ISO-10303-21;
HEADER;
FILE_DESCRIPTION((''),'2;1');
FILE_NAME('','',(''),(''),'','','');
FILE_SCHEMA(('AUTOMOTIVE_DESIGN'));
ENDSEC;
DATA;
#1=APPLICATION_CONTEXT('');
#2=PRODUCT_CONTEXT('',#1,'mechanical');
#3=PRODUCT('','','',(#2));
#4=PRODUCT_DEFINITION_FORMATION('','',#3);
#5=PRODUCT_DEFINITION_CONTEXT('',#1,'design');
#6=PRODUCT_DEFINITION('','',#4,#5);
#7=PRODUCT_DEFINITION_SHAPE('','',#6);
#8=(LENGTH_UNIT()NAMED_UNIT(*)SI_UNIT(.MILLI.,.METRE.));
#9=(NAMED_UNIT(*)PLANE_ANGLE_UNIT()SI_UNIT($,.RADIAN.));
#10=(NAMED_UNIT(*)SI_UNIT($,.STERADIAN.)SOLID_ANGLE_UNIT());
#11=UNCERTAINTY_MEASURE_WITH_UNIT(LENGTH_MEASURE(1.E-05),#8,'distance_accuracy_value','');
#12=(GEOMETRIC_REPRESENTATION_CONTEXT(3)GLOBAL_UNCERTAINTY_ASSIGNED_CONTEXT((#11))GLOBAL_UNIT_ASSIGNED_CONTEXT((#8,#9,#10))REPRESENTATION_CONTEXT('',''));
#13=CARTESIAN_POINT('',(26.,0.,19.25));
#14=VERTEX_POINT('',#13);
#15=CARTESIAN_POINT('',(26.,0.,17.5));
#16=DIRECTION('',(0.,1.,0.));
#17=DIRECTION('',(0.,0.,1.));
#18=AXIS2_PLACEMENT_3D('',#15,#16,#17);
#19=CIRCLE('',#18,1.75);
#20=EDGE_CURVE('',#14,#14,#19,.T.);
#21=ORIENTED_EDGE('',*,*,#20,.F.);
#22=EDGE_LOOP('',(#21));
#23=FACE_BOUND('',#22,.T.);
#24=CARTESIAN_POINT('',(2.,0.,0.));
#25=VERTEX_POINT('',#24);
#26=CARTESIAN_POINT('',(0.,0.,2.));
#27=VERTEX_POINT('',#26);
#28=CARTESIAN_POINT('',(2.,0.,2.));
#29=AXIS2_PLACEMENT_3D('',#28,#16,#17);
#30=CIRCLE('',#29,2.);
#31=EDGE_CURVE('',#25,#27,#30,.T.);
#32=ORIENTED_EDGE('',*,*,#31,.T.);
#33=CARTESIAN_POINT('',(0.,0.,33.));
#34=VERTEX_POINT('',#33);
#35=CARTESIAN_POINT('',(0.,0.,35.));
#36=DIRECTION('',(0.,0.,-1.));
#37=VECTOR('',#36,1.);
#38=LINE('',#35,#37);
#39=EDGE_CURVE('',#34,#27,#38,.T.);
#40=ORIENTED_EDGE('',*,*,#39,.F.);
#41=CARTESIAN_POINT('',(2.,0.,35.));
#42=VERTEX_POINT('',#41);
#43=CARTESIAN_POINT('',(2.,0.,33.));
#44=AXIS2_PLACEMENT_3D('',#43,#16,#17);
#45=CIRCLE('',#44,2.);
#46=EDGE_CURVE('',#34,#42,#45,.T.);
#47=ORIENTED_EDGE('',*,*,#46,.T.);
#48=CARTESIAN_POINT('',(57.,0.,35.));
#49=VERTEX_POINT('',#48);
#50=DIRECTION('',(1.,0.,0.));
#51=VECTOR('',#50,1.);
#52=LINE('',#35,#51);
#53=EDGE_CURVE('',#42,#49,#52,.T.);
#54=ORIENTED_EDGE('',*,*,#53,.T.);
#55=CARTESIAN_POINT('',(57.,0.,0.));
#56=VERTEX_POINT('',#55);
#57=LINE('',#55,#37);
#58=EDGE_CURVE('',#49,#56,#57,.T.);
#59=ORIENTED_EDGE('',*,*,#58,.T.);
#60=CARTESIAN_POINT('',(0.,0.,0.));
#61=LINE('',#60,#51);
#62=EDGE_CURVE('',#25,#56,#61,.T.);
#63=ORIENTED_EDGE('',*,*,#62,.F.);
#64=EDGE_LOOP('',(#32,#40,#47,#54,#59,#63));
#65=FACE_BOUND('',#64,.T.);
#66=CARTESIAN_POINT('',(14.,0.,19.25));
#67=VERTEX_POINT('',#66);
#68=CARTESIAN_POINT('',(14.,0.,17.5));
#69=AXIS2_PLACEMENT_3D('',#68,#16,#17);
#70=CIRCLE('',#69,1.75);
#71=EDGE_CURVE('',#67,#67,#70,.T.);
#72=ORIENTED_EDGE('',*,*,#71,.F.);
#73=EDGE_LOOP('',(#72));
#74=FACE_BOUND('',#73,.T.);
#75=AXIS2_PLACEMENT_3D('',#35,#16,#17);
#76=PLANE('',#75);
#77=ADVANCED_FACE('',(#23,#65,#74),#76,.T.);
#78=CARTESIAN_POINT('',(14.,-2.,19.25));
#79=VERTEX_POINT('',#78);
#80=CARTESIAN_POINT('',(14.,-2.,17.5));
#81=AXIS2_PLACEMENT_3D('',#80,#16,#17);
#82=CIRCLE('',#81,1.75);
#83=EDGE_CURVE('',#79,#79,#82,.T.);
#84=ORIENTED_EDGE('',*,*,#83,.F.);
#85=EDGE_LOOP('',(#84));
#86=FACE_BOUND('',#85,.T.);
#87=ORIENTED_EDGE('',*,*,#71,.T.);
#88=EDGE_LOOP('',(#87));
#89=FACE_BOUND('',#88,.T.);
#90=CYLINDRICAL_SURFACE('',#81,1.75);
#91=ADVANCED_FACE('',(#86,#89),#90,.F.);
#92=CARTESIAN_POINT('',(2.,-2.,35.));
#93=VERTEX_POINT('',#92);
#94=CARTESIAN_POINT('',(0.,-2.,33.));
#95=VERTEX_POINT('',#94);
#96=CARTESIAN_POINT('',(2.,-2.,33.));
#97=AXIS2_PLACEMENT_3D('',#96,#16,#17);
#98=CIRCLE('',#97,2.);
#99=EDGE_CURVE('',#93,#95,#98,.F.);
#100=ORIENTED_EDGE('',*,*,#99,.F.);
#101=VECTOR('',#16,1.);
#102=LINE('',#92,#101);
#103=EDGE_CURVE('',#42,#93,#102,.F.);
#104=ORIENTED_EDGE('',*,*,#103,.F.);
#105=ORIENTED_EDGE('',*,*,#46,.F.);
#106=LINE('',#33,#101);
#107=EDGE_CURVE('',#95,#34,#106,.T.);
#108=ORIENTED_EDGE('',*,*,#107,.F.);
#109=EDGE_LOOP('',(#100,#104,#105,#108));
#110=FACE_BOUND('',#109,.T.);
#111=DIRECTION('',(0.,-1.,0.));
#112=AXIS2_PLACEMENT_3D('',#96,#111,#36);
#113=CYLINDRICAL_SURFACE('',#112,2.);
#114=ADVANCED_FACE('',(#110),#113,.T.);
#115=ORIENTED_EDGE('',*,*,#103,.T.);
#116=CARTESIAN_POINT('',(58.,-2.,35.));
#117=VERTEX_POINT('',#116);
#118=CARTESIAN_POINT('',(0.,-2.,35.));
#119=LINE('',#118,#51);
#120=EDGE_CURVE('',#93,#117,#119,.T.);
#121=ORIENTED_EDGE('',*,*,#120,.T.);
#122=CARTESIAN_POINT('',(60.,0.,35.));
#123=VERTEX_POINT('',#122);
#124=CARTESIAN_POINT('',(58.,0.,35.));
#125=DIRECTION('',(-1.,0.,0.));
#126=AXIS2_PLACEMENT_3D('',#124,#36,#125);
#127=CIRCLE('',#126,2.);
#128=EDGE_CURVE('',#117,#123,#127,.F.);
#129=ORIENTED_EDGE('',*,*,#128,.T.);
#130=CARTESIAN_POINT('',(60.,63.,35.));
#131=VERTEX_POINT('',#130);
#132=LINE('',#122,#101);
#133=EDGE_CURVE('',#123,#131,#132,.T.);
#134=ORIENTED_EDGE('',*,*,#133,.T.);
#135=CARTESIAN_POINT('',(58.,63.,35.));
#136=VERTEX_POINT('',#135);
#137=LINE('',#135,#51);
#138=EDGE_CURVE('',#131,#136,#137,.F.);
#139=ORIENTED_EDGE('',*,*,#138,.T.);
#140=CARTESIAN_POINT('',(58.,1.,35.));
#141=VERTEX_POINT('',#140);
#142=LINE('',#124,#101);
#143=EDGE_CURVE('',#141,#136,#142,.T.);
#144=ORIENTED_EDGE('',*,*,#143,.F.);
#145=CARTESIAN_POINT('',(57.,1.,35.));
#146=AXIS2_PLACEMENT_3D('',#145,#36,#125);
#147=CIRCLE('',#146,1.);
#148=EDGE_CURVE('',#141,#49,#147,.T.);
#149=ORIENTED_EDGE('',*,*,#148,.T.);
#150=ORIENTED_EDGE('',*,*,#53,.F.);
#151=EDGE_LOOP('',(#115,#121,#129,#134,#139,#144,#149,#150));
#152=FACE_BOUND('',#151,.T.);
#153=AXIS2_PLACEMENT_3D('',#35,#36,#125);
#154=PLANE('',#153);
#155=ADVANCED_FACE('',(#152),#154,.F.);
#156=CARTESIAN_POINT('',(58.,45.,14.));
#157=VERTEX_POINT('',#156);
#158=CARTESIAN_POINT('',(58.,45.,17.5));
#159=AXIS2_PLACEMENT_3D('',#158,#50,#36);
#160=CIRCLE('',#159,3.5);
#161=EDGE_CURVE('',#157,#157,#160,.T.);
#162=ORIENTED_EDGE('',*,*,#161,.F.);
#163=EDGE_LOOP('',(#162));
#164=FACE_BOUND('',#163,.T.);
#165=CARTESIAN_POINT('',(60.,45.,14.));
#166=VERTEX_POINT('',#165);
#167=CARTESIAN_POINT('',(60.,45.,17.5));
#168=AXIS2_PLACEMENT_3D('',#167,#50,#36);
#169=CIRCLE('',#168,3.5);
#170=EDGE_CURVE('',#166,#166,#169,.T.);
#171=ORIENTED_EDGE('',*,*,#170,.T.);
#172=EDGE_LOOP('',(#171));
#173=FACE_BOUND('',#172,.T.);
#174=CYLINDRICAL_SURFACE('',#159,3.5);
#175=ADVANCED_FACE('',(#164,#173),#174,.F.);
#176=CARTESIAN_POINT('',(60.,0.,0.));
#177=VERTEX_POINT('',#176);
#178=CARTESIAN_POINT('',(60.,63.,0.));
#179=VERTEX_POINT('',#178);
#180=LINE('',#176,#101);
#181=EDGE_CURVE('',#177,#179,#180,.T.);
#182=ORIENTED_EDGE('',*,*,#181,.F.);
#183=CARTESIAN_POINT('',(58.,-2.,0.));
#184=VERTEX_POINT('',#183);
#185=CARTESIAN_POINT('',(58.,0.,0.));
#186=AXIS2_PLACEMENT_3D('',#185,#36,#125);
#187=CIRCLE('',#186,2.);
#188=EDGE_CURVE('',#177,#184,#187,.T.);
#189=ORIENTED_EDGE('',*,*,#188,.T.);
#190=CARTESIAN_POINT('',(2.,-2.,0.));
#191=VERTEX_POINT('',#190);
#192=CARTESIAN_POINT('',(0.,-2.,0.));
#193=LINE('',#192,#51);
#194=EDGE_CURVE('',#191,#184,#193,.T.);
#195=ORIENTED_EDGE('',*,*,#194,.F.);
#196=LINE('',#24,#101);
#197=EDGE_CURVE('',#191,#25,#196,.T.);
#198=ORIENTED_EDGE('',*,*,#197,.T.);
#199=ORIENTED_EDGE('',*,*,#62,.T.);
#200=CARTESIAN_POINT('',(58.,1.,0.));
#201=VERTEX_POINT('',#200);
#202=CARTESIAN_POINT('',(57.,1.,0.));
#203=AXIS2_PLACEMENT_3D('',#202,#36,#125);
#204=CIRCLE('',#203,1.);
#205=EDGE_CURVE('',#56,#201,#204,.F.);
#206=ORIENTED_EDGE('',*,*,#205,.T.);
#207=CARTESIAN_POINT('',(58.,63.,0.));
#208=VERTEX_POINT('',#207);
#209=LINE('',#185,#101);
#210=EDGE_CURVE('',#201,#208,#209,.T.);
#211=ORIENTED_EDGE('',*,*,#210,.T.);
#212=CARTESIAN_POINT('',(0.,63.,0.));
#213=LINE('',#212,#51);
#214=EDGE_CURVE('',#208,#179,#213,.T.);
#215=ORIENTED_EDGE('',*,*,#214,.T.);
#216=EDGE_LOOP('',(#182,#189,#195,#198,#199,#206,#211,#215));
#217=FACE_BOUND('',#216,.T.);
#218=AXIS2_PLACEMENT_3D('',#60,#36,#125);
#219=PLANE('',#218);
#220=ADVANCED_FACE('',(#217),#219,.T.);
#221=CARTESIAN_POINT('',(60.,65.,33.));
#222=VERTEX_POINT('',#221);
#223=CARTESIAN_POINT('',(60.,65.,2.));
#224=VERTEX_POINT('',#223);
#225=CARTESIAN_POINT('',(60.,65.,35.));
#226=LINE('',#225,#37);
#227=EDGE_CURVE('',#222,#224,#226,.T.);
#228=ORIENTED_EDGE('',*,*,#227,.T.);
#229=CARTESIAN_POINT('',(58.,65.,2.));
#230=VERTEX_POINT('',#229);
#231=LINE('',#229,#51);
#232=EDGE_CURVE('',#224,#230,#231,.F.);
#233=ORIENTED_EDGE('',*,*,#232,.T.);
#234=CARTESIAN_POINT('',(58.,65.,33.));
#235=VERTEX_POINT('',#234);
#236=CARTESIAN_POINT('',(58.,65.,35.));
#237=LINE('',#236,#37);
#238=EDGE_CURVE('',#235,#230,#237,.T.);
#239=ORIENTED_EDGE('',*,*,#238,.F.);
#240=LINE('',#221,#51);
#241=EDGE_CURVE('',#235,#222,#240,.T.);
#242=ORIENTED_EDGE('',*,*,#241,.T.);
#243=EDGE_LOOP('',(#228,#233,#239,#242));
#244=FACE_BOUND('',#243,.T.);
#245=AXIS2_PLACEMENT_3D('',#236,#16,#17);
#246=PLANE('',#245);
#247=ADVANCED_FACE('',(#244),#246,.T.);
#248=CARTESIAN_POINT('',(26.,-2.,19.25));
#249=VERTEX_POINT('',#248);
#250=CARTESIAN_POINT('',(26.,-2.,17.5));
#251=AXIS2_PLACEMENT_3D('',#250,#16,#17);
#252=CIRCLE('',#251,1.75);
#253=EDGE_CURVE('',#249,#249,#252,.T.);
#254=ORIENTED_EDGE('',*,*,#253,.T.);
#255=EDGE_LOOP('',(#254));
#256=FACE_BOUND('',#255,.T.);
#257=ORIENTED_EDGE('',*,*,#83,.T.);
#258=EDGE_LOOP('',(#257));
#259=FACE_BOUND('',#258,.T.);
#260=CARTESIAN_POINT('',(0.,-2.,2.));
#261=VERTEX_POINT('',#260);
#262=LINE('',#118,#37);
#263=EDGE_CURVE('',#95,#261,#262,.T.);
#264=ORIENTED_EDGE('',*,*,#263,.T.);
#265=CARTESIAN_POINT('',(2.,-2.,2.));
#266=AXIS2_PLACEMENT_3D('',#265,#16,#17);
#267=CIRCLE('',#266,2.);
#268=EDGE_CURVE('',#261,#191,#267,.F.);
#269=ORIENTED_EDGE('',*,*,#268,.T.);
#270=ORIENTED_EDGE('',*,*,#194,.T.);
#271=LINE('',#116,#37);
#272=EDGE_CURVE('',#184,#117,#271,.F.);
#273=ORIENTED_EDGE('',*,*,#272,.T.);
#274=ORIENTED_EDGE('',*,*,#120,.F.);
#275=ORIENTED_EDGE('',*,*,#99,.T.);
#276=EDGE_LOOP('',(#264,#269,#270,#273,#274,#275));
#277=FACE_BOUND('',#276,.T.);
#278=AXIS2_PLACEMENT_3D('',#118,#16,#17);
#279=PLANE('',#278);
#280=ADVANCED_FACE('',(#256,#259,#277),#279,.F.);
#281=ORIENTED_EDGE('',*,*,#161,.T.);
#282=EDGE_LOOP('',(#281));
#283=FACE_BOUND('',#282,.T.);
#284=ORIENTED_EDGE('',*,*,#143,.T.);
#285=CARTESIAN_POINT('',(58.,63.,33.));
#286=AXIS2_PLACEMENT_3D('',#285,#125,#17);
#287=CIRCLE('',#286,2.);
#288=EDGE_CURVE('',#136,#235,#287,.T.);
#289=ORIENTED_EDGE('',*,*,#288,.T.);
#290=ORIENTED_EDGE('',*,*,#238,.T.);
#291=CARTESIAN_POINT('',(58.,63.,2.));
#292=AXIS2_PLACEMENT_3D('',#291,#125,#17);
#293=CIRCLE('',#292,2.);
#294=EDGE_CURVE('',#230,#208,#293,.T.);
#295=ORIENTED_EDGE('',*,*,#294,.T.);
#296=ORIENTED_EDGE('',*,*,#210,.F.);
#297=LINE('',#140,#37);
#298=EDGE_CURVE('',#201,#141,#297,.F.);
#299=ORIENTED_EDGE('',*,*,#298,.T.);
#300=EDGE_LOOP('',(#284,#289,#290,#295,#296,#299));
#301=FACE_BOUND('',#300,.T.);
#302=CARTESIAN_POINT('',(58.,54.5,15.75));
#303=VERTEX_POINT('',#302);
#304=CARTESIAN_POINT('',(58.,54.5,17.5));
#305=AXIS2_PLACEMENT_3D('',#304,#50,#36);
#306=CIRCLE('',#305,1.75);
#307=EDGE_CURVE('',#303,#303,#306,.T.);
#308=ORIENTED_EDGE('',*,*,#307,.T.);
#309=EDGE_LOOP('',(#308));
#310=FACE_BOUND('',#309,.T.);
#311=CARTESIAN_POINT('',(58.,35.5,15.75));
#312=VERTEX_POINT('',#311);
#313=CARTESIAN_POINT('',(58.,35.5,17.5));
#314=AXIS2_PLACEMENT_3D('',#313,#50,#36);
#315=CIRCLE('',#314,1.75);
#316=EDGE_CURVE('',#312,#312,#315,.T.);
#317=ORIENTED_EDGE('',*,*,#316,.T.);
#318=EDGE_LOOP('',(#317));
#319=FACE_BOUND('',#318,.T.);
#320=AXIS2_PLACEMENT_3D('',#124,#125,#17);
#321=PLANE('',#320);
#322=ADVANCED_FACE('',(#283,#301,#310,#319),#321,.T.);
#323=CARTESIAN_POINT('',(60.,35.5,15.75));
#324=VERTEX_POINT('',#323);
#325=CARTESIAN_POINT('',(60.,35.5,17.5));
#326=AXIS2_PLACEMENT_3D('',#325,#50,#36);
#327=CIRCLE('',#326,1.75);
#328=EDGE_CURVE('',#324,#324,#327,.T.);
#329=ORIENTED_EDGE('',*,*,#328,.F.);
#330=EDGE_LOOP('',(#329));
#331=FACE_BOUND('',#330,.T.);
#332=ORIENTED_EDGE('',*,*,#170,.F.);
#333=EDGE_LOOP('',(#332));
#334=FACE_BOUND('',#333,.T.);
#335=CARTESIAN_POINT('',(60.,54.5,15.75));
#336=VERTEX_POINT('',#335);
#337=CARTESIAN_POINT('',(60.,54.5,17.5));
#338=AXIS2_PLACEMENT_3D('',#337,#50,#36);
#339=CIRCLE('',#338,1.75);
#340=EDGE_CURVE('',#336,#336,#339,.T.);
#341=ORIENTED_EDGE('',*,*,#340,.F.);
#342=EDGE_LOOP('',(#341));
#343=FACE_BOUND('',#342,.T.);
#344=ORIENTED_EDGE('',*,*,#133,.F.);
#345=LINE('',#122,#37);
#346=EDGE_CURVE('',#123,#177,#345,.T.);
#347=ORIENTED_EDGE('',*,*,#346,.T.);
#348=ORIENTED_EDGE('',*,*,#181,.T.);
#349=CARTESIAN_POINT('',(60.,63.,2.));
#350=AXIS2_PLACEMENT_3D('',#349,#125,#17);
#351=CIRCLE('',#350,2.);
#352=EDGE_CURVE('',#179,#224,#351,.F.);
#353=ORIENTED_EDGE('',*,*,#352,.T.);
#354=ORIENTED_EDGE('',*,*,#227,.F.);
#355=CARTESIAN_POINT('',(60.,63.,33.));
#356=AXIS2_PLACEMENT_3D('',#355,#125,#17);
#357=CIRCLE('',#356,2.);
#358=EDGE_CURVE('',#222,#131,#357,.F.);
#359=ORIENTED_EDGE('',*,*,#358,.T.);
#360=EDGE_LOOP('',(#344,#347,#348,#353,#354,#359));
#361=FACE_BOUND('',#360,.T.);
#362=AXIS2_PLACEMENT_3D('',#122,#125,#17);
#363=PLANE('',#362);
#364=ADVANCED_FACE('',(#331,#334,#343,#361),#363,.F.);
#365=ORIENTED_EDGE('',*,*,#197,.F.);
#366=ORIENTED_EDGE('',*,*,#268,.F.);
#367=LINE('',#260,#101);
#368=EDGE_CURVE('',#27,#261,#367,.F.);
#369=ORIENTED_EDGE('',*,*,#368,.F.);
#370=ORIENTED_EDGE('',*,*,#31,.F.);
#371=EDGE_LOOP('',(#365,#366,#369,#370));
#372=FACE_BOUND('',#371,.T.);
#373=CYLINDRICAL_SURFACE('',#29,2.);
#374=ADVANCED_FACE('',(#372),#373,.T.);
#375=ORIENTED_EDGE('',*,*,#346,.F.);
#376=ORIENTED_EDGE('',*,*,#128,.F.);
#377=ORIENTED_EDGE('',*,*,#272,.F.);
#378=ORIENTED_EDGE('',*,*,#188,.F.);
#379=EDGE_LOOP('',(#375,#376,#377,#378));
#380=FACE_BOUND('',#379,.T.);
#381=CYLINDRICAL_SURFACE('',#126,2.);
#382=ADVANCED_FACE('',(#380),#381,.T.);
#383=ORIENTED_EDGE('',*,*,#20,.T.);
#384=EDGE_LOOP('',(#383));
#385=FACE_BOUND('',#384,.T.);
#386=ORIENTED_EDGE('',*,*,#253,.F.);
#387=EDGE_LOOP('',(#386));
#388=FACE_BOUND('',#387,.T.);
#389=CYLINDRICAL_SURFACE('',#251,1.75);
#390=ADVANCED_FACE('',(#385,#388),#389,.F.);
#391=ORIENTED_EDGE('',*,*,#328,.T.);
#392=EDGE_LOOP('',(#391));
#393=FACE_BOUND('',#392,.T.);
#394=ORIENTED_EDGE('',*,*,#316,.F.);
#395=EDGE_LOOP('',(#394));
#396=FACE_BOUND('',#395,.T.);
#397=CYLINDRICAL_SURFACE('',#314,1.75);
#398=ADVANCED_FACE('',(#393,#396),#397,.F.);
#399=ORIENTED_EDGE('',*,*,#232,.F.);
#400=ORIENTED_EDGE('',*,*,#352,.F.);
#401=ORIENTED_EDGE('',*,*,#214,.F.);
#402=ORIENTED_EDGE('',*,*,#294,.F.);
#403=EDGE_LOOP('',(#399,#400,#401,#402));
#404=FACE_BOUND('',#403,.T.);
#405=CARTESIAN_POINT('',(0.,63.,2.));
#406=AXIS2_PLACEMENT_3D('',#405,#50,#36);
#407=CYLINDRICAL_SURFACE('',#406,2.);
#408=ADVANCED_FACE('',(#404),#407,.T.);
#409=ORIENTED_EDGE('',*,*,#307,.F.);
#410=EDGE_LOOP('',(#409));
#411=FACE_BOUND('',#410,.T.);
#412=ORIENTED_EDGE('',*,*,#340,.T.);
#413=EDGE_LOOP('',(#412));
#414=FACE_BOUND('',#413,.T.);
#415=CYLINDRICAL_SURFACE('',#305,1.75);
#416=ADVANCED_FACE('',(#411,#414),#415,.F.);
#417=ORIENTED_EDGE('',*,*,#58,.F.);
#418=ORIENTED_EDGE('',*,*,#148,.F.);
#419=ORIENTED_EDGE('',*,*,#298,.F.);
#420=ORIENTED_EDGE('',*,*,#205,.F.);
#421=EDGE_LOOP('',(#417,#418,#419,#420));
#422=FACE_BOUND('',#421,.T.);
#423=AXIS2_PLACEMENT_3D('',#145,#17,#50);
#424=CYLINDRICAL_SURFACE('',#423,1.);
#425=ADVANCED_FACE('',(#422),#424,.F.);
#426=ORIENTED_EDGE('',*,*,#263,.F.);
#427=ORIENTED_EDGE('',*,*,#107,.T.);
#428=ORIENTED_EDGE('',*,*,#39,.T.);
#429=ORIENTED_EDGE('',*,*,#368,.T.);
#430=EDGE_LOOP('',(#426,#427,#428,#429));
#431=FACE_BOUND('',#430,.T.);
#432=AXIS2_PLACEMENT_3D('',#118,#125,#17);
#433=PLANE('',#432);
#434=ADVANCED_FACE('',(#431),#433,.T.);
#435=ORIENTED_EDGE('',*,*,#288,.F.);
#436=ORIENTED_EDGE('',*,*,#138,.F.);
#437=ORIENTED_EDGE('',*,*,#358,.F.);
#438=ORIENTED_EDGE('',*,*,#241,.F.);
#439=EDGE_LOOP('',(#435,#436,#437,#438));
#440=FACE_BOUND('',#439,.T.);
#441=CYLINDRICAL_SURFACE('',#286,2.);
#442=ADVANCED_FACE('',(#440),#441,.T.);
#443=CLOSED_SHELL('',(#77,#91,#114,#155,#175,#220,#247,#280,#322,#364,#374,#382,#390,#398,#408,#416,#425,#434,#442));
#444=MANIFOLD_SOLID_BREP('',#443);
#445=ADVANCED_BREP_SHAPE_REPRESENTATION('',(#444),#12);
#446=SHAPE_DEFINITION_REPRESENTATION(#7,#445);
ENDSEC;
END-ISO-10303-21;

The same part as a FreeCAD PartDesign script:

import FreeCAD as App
import Part
import Sketcher
Q = App.Units.Quantity


def edges_at(feature, points):
    """Names of the edges that pass closest to the given points."""
    edges = feature.Shape.Edges
    near = lambda p: min(range(len(edges)), key=lambda i: edges[i].distToShape(Part.Vertex(*p))[0])
    return sorted({f"Edge{near(p) + 1}" for p in points})


def add_polygon(sketch, points):
    """Adds a closed chain of lines whose ends are joined by coincident constraints."""
    first, n = sketch.GeometryCount, len(points)
    for a, b in zip(points, points[1:] + points[:1]):
        sketch.addGeometry(Part.LineSegment(App.Vector(*a, 0), App.Vector(*b, 0)), False)
    for i in range(n):
        sketch.addConstraint(Sketcher.Constraint("Coincident", first + i, 2, first + (i + 1) % n, 1))

doc = App.newDocument("Part")
body = doc.addObject("PartDesign::Body", "Body")

# Sketch on XY plane
sketch1 = doc.addObject("Sketcher::SketchObject", "Sketch")
body.addObject(sketch1)
sketch1.AttachmentSupport = (doc.XY_Plane, [""])
sketch1.MapMode = "FlatFace"
add_polygon(sketch1, [(58, 0), (0, 0), (0, -2), (60, -2), (60, 65), (58, 65)])  # lines 0-5
sketch1.addConstraint([
    Sketcher.Constraint("Horizontal", 0),
    Sketcher.Constraint("Vertical", 1),
    Sketcher.Constraint("Horizontal", 2),
    Sketcher.Constraint("Vertical", 3),
    Sketcher.Constraint("Horizontal", 4),
    Sketcher.Constraint("Vertical", 5),
    Sketcher.Constraint("Coincident", 0, 2, -1, 1),
    Sketcher.Constraint("Equal", 4, 1),
    Sketcher.Constraint("DistanceX", 0, 2, 0, 1, Q("58 mm")),
    Sketcher.Constraint("DistanceX", 2, 1, 2, 2, Q("60 mm")),
    Sketcher.Constraint("DistanceY", 3, 1, 3, 2, Q("67 mm")),
])
pad1 = doc.addObject("PartDesign::Pad", "Pad")
body.addObject(pad1)
pad1.Profile = sketch1
pad1.Length = 35
doc.recompute()

fillet = doc.addObject("PartDesign::Fillet", "Fillet")
body.addObject(fillet)
fillet.Base = (pad1, edges_at(pad1, [(60, -2, 17.5)]))
fillet.Radius = 2
doc.recompute()

fillet2 = doc.addObject("PartDesign::Fillet", "Fillet001")
body.addObject(fillet2)
fillet2.Base = (fillet, edges_at(fillet, [(58, 0, 17.5)]))
fillet2.Radius = 1

# Sketch on YZ plane
sketch2 = doc.addObject("Sketcher::SketchObject", "Sketch001")
body.addObject(sketch2)
sketch2.AttachmentSupport = (doc.YZ_Plane, [""])
sketch2.MapMode = "FlatFace"
sketch2.AttachmentOffset = App.Placement(App.Vector(0, 0, 60), App.Rotation())
sketch2.addGeometry([
    Part.Circle(App.Vector(35.5, 17.5, 0), App.Vector(0, 0, 1), 1.75),
    Part.Circle(App.Vector(54.5, 17.5, 0), App.Vector(0, 0, 1), 1.75),
    Part.Circle(App.Vector(45, 17.5, 0), App.Vector(0, 0, 1), 3.5),
], False)
sketch2.addConstraint([
    Sketcher.Constraint("Equal", 0, 1),
    Sketcher.Constraint("Horizontal", 0, 3, 1, 3),
    Sketcher.Constraint("Horizontal", 1, 3, 2, 3),
    Sketcher.Constraint("Diameter", 2, Q("7 mm")),
    Sketcher.Constraint("Diameter", 0, Q("3.5 mm")),
    Sketcher.Constraint("DistanceX", -1, 1, 2, 3, Q("45 mm")),
    Sketcher.Constraint("DistanceX", 0, 3, 1, 3, Q("19 mm")),
    Sketcher.Constraint("DistanceX", -1, 1, 0, 3, Q("35.5 mm")),
    Sketcher.Constraint("DistanceY", -1, 1, 0, 3, Q("17.5 mm")),
])
pocket1 = doc.addObject("PartDesign::Pocket", "Pocket")
body.addObject(pocket1)
pocket1.Profile = sketch2
pocket1.Length = 2
doc.recompute()

fillet3 = doc.addObject("PartDesign::Fillet", "Fillet002")
body.addObject(fillet3)
fillet3.Base = (pocket1, edges_at(pocket1, [(59, 65, 35)]))
fillet3.Radius = 2
doc.recompute()

fillet4 = doc.addObject("PartDesign::Fillet", "Fillet003")
body.addObject(fillet4)
fillet4.Base = (fillet3, edges_at(fillet3, [(59, 65, 0)]))
fillet4.Radius = 2
doc.recompute()

fillet5 = doc.addObject("PartDesign::Fillet", "Fillet004")
body.addObject(fillet5)
fillet5.Base = (fillet4, edges_at(fillet4, [(0, -1, 0)]))
fillet5.Radius = 2
doc.recompute()

fillet6 = doc.addObject("PartDesign::Fillet", "Fillet005")
body.addObject(fillet6)
fillet6.Base = (fillet5, edges_at(fillet5, [(0, -1, 35)]))
fillet6.Radius = 2

# Sketch on XZ plane
sketch3 = doc.addObject("Sketcher::SketchObject", "Sketch002")
body.addObject(sketch3)
sketch3.AttachmentSupport = (doc.XZ_Plane, [""])
sketch3.MapMode = "FlatFace"
sketch3.addGeometry([
    Part.Circle(App.Vector(26, 17.5, 0), App.Vector(0, 0, 1), 1.75),
    Part.Circle(App.Vector(14, 17.5, 0), App.Vector(0, 0, 1), 1.75),
], False)
sketch3.addConstraint([
    Sketcher.Constraint("Equal", 0, 1),
    Sketcher.Constraint("Horizontal", 0, 3, 1, 3),
    Sketcher.Constraint("Diameter", 0, Q("3.5 mm")),
    Sketcher.Constraint("DistanceX", -1, 1, 0, 3, Q("26 mm")),
    Sketcher.Constraint("DistanceX", -1, 1, 1, 3, Q("14 mm")),
    Sketcher.Constraint("DistanceY", -1, 1, 0, 3, Q("17.5 mm")),
])
pocket2 = doc.addObject("PartDesign::Pocket", "Pocket001")
body.addObject(pocket2)
pocket2.Profile = sketch3
pocket2.Length = 2
pocket2.Reversed = True

doc.recompute()
